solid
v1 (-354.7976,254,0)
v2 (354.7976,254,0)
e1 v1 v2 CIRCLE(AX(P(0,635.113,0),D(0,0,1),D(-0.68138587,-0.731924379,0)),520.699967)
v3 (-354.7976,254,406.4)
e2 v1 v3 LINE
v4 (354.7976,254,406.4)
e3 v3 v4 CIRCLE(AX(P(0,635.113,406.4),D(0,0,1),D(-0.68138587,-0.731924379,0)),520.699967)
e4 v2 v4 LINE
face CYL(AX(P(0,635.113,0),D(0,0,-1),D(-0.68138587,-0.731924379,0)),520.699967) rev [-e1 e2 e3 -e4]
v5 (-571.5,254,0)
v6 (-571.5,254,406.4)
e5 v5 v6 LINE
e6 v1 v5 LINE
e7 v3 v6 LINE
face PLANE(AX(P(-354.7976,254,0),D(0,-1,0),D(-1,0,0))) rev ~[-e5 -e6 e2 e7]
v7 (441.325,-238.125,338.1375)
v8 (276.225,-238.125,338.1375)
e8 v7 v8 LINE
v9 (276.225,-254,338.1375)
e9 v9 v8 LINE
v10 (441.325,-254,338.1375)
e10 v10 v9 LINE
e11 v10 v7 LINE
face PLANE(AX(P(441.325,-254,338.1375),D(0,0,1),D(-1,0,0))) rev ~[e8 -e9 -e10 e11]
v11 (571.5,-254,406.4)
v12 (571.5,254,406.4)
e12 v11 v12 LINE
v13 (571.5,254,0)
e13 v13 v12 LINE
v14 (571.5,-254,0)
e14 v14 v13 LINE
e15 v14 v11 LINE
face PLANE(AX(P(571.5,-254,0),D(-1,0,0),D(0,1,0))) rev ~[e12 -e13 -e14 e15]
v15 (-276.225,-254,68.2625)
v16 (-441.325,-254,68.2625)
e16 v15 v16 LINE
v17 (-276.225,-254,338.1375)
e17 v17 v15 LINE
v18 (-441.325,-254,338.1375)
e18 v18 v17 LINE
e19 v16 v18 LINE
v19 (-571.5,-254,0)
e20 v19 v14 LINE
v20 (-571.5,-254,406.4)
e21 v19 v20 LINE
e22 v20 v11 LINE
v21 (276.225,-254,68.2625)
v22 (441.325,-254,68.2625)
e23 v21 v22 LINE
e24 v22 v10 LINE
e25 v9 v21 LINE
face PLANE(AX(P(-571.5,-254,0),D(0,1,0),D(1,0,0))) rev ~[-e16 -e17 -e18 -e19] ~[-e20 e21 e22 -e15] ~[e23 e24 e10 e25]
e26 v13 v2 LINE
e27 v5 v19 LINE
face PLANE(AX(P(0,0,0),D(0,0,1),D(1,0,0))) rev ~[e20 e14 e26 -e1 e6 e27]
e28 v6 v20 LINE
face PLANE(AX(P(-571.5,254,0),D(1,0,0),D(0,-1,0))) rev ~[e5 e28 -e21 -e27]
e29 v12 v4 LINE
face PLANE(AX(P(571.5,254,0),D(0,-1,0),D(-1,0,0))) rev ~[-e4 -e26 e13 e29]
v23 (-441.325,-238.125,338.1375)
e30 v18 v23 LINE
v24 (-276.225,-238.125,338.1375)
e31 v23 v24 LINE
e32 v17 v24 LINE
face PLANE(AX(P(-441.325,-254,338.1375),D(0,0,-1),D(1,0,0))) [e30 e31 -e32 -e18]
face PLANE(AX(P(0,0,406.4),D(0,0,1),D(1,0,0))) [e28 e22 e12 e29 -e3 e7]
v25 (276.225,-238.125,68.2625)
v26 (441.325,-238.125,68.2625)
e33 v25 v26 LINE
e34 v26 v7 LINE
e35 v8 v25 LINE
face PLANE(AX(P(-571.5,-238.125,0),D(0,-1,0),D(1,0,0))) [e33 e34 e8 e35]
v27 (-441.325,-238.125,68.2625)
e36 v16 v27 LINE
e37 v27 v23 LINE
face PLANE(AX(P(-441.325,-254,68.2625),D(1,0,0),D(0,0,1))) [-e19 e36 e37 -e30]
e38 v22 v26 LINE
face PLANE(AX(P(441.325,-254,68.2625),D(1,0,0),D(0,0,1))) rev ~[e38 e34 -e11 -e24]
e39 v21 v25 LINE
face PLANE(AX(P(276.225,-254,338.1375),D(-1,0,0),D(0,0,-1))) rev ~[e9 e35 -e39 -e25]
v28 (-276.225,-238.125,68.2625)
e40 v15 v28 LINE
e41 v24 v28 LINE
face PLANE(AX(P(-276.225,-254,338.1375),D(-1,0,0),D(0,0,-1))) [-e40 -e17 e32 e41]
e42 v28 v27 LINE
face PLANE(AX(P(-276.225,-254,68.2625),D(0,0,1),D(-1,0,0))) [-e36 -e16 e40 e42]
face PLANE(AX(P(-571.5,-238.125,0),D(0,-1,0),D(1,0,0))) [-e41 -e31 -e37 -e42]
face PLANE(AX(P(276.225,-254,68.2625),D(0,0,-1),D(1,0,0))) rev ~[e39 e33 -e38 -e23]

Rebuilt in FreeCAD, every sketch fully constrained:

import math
import FreeCAD as App
import Part
import Sketcher
Q = App.Units.Quantity


def add_polygon(sketch, points):
    """Adds a closed chain of lines whose ends are joined by coincident constraints."""
    first, n = sketch.GeometryCount, len(points)
    for a, b in zip(points, points[1:] + points[:1]):
        sketch.addGeometry(Part.LineSegment(App.Vector(*a, 0), App.Vector(*b, 0)), False)
    for i in range(n):
        sketch.addConstraint(Sketcher.Constraint("Coincident", first + i, 2, first + (i + 1) % n, 1))

doc = App.newDocument("Part")
body = doc.addObject("PartDesign::Body", "Body")

sketch1 = doc.addObject("Sketcher::SketchObject", "Sketch")
body.addObject(sketch1)
sketch1.AttachmentSupport = (doc.XY_Plane, [""])
sketch1.MapMode = "FlatFace"
sketch1.addGeometry(Part.LineSegment(App.Vector(-572, 254, 0), App.Vector(-572, -254, 0)), False)
sketch1.addGeometry(Part.LineSegment(App.Vector(-572, -254, 0), App.Vector(572, -254, 0)), False)
sketch1.addGeometry(Part.LineSegment(App.Vector(572, -254, 0), App.Vector(572, 254, 0)), False)
sketch1.addGeometry(Part.LineSegment(App.Vector(572, 254, 0), App.Vector(355, 254, 0)), False)
sketch1.addGeometry(Part.ArcOfCircle(Part.Circle(App.Vector(0, 635, 0), App.Vector(0, 0, 1), 521), math.radians(-133), math.radians(-47)), False)
sketch1.addGeometry(Part.LineSegment(App.Vector(-355, 254, 0), App.Vector(-572, 254, 0)), False)
sketch1.addConstraint(Sketcher.Constraint("Coincident", 0, 2, 1, 1))
sketch1.addConstraint(Sketcher.Constraint("Coincident", 1, 2, 2, 1))
sketch1.addConstraint(Sketcher.Constraint("Coincident", 2, 2, 3, 1))
sketch1.addConstraint(Sketcher.Constraint("Coincident", 3, 2, 4, 2))
sketch1.addConstraint(Sketcher.Constraint("Coincident", 4, 1, 5, 1))
sketch1.addConstraint(Sketcher.Constraint("Coincident", 5, 2, 0, 1))
sketch1.addConstraint(Sketcher.Constraint("Vertical", 0))
sketch1.addConstraint(Sketcher.Constraint("Horizontal", 1))
sketch1.addConstraint(Sketcher.Constraint("Vertical", 2))
sketch1.addConstraint(Sketcher.Constraint("Horizontal", 3))
sketch1.addConstraint(Sketcher.Constraint("Horizontal", 5))
sketch1.addConstraint(Sketcher.Constraint("Symmetric", 0, 2, 2, 2, -1, 1))
sketch1.addConstraint(Sketcher.Constraint("PointOnObject", 4, 3, -2))
sketch1.addConstraint(Sketcher.Constraint("Equal", 3, 5))
sketch1.addConstraint(Sketcher.Constraint("Radius", 4, Q("20.5 in")))
sketch1.addConstraint(Sketcher.Constraint("DistanceX", 1, 1, 1, 2, Q("45 in")))
sketch1.addConstraint(Sketcher.Constraint("DistanceY", 0, 2, 0, 1, Q("20 in")))
sketch1.addConstraint(Sketcher.Constraint("DistanceX", 3, 2, 3, 1, Q("8.5316 in")))
pad1 = doc.addObject("PartDesign::Pad", "Pad")
body.addObject(pad1)
pad1.Profile = sketch1
pad1.Length = Q("16 in")

sketch2 = doc.addObject("Sketcher::SketchObject", "Sketch001")
body.addObject(sketch2)
sketch2.AttachmentSupport = (doc.XZ_Plane, [""])
sketch2.MapMode = "FlatFace"
sketch2.AttachmentOffset = App.Placement(App.Vector(0, 0, 10 * 25.4), App.Rotation())
add_polygon(sketch2, [(-441, 68), (-276, 68), (-276, 338), (-441, 338)])
add_polygon(sketch2, [(276, 338), (276, 68), (441, 68), (441, 338)])
sketch2.addConstraint(Sketcher.Constraint("Horizontal", 0))
sketch2.addConstraint(Sketcher.Constraint("Vertical", 1))
sketch2.addConstraint(Sketcher.Constraint("Horizontal", 2))
sketch2.addConstraint(Sketcher.Constraint("Vertical", 3))
sketch2.addConstraint(Sketcher.Constraint("Vertical", 4))
sketch2.addConstraint(Sketcher.Constraint("Horizontal", 5))
sketch2.addConstraint(Sketcher.Constraint("Vertical", 6))
sketch2.addConstraint(Sketcher.Constraint("Horizontal", 7))
sketch2.addConstraint(Sketcher.Constraint("Symmetric", 0, 2, 4, 2, -2))
sketch2.addConstraint(Sketcher.Constraint("Symmetric", 2, 2, 6, 2, -2))
sketch2.addConstraint(Sketcher.Constraint("DistanceX", 0, 1, 0, 2, Q("6.5 in")))
sketch2.addConstraint(Sketcher.Constraint("DistanceY", 1, 1, 1, 2, Q("10.625 in")))
sketch2.addConstraint(Sketcher.Constraint("DistanceY", -1, 1, 0, 2, Q("2.6875 in")))
sketch2.addConstraint(Sketcher.Constraint("DistanceX", 0, 2, 4, 2, Q("21.75 in")))
pocket1 = doc.addObject("PartDesign::Pocket", "Pocket")
body.addObject(pocket1)
pocket1.Profile = sketch2
pocket1.Length = Q("0.625 in")

doc.recompute()
